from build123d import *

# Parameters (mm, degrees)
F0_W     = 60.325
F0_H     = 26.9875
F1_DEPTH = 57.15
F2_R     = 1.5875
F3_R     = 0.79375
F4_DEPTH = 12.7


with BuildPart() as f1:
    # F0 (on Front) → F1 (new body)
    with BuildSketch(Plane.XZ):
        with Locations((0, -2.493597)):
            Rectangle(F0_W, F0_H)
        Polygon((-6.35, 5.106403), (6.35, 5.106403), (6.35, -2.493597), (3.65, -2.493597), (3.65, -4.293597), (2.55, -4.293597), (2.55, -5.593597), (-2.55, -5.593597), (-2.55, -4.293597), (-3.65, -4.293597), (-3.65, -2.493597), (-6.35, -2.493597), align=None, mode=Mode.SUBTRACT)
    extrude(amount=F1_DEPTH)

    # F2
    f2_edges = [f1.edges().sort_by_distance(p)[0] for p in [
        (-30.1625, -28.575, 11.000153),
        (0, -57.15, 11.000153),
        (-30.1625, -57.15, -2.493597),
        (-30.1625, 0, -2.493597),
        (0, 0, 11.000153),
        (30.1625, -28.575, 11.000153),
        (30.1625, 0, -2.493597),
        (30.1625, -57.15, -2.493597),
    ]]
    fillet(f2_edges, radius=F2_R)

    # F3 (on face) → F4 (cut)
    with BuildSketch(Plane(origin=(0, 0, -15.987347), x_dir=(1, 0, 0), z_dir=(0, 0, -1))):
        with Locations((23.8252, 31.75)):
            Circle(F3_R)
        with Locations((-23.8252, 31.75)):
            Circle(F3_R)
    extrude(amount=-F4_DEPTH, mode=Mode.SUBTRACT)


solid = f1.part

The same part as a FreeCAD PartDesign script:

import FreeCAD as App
import Part
import Sketcher
Q = App.Units.Quantity


def edges_at(feature, points):
    """Names of the edges that pass closest to the given points."""
    edges = feature.Shape.Edges
    near = lambda p: min(range(len(edges)), key=lambda i: edges[i].distToShape(Part.Vertex(*p))[0])
    return sorted({f"Edge{near(p) + 1}" for p in points})


def add_polygon(sketch, points):
    """Adds a closed chain of lines whose ends are joined by coincident constraints."""
    first, n = sketch.GeometryCount, len(points)
    for a, b in zip(points, points[1:] + points[:1]):
        sketch.addGeometry(Part.LineSegment(App.Vector(*a, 0), App.Vector(*b, 0)), False)
    for i in range(n):
        sketch.addConstraint(Sketcher.Constraint("Coincident", first + i, 2, first + (i + 1) % n, 1))

doc = App.newDocument("Part")
body = doc.addObject("PartDesign::Body", "Body")

# Sketch on XZ plane
sketch1 = body.newObject("Sketcher::SketchObject", "Sketch")
sketch1.AttachmentSupport = (doc.getObject("XZ_Plane"), [""])
sketch1.MapMode = "FlatFace"
add_polygon(sketch1, [(-30.2, 11), (-30.2, -16), (30.2, -16), (30.2, 11)])  # lines 0-3
add_polygon(sketch1, [(-6.3, -2.5), (-6.3, 5.1), (6.3, 5.1), (6.3, -2.5), (3.6, -2.5), (3.6, -4.3), (2.5, -4.3), (2.5, -5.6), (-2.5, -5.6), (-2.5, -4.3), (-3.6, -4.3), (-3.6, -2.5)])  # lines 4-15
sketch1.addConstraint(Sketcher.Constraint("Vertical", 0))
sketch1.addConstraint(Sketcher.Constraint("Horizontal", 1))
sketch1.addConstraint(Sketcher.Constraint("Vertical", 2))
sketch1.addConstraint(Sketcher.Constraint("Horizontal", 3))
sketch1.addConstraint(Sketcher.Constraint("Vertical", 4))
sketch1.addConstraint(Sketcher.Constraint("Horizontal", 5))
sketch1.addConstraint(Sketcher.Constraint("Vertical", 6))
sketch1.addConstraint(Sketcher.Constraint("Horizontal", 7))
sketch1.addConstraint(Sketcher.Constraint("Vertical", 8))
sketch1.addConstraint(Sketcher.Constraint("Horizontal", 9))
sketch1.addConstraint(Sketcher.Constraint("Vertical", 10))
sketch1.addConstraint(Sketcher.Constraint("Horizontal", 11))
sketch1.addConstraint(Sketcher.Constraint("Vertical", 12))
sketch1.addConstraint(Sketcher.Constraint("Horizontal", 13))
sketch1.addConstraint(Sketcher.Constraint("Vertical", 14))
sketch1.addConstraint(Sketcher.Constraint("Horizontal", 15))
sketch1.addConstraint(Sketcher.Constraint("Symmetric", 9, 2, 12, 2, -2))
sketch1.addConstraint(Sketcher.Constraint("Symmetric", 7, 2, 14, 2, -2))
sketch1.addConstraint(Sketcher.Constraint("Equal", 7, 15))
sketch1.addConstraint(Sketcher.Constraint("DistanceX", 5, 1, 5, 2, Q("12.7 mm")))
sketch1.addConstraint(Sketcher.Constraint("DistanceX", 7, 2, 7, 1, Q("2.7 mm")))
sketch1.addConstraint(Sketcher.Constraint("DistanceX", 9, 2, 9, 1, Q("1.1 mm")))
sketch1.addConstraint(Sketcher.Constraint("DistanceY", 4, 1, 4, 2, Q("7.6 mm")))
sketch1.addConstraint(Sketcher.Constraint("DistanceY", 8, 2, 8, 1, Q("1.8 mm")))
sketch1.addConstraint(Sketcher.Constraint("DistanceY", 10, 2, 10, 1, Q("1.3 mm")))
sketch1.addConstraint(Sketcher.Constraint("DistanceX", 1, 1, 1, 2, Q("60.325 mm")))
sketch1.addConstraint(Sketcher.Constraint("DistanceY", 0, 2, 0, 1, Q("26.9875 mm")))
sketch1.addConstraint(Sketcher.Constraint("DistanceX", 0, 2, -1, 1, Q("30.1625 mm")))
sketch1.addConstraint(Sketcher.Constraint("DistanceY", 4, 2, 3, 2, Q("5.89375 mm")))
sketch1.addConstraint(Sketcher.Constraint("DistanceY", 0, 2, -1, 1, Q("15.987347 mm")))
pad1 = body.newObject("PartDesign::Pad", "Pad")
pad1.Profile = sketch1
pad1.Length = 57.15
doc.recompute()

fillet = body.newObject("PartDesign::Fillet", "Fillet")
fillet.Base = (pad1, edges_at(pad1, [
    (-30.163, -28.575, 11),
    (0, -57.15, 11),
    (-30.163, -57.15, -2.494),
    (-30.163, 0, -2.494),
    (0, 0, 11),
    (30.163, -28.575, 11),
    (30.163, 0, -2.494),
    (30.163, -57.15, -2.494),
]))
fillet.Radius = 1.5875

# Sketch on XY plane
sketch2 = body.newObject("Sketcher::SketchObject", "Sketch001")
sketch2.AttachmentSupport = (doc.getObject("XY_Plane"), [""])
sketch2.MapMode = "FlatFace"
sketch2.AttachmentOffset = App.Placement(App.Vector(0, 0, -15.987347), App.Rotation())
sketch2.addGeometry(Part.Circle(App.Vector(23.8, -31.8, 0), App.Vector(0, 0, 1), 0.8), False)
sketch2.addGeometry(Part.Circle(App.Vector(-23.8, -31.8, 0), App.Vector(0, 0, 1), 0.8), False)
sketch2.addConstraint(Sketcher.Constraint("Equal", 0, 1))
sketch2.addConstraint(Sketcher.Constraint("Symmetric", 0, 3, 1, 3, -2))
sketch2.addConstraint(Sketcher.Constraint("Diameter", 0, Q("1.5875 mm")))
sketch2.addConstraint(Sketcher.Constraint("DistanceY", 0, 3, -1, 1, Q("31.75 mm")))
sketch2.addConstraint(Sketcher.Constraint("DistanceX", -1, 1, 0, 3, Q("23.8252 mm")))
pocket1 = body.newObject("PartDesign::Pocket", "Pocket")
pocket1.Profile = sketch2
pocket1.Length = 12.7
pocket1.Reversed = True

doc.recompute()
